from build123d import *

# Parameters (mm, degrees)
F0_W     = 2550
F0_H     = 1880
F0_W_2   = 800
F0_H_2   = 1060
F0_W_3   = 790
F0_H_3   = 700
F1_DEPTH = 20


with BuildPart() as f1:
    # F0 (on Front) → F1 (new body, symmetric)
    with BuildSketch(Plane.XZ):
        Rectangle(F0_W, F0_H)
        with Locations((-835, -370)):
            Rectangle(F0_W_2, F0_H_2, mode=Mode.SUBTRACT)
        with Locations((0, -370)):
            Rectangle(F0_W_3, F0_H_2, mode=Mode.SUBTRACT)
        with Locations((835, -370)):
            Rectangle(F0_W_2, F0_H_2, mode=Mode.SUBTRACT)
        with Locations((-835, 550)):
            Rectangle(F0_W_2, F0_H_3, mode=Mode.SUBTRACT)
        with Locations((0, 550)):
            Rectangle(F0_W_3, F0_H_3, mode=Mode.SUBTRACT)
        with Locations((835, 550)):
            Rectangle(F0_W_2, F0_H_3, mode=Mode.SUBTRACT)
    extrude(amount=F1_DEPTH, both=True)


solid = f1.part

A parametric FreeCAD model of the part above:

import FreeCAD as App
import Part
import Sketcher

V = App.Vector

doc = App.newDocument("Part")
params = doc.addObject("Spreadsheet::Sheet", "Params")
for row, (alias, value) in enumerate([
    ("sketch1_width", "2550 mm"),
    ("sketch1_width2", "800 mm"),
    ("sketch1_width3", "790 mm"),
    ("sketch1_height", "1880 mm"),
    ("sketch1_height2", "1060 mm"),
    ("pad1_length", "40 mm"),
], start=1):
    params.set(f"A{row}", alias)
    params.set(f"B{row}", "=" + value)
    params.setAlias(f"B{row}", alias)

body = doc.addObject("PartDesign::Body", "Body")

# Sketch on XZ plane
sketch1 = body.newObject("Sketcher::SketchObject", "Sketch")
sketch1.AttachmentSupport = (doc.getObject("XZ_Plane"), [""])
sketch1.MapMode = "FlatFace"
sketch1.addGeometry([
    Part.LineSegment(V(-1275, 940, 0), V(-1275, -940, 0)),  # 0
    Part.LineSegment(V(-1275, -940, 0), V(1275, -940, 0)),  # 1
    Part.LineSegment(V(1275, -940, 0), V(1275, 940, 0)),  # 2
    Part.LineSegment(V(1275, 940, 0), V(-1275, 940, 0)),  # 3
    Part.LineSegment(V(-435, -900, 0), V(-1235, -900, 0)),  # 4
    Part.LineSegment(V(-1235, -900, 0), V(-1235, 160, 0)),  # 5
    Part.LineSegment(V(-1235, 160, 0), V(-435, 160, 0)),  # 6
    Part.LineSegment(V(-435, 160, 0), V(-435, -900, 0)),  # 7
    Part.LineSegment(V(395, -900, 0), V(-395, -900, 0)),  # 8
    Part.LineSegment(V(-395, -900, 0), V(-395, 160, 0)),  # 9
    Part.LineSegment(V(-395, 160, 0), V(395, 160, 0)),  # 10
    Part.LineSegment(V(395, 160, 0), V(395, -900, 0)),  # 11
    Part.LineSegment(V(1235, -900, 0), V(435, -900, 0)),  # 12
    Part.LineSegment(V(435, -900, 0), V(435, 160, 0)),  # 13
    Part.LineSegment(V(435, 160, 0), V(1235, 160, 0)),  # 14
    Part.LineSegment(V(1235, 160, 0), V(1235, -900, 0)),  # 15
    Part.LineSegment(V(-435, 200, 0), V(-1235, 200, 0)),  # 16
    Part.LineSegment(V(-1235, 200, 0), V(-1235, 900, 0)),  # 17
    Part.LineSegment(V(-1235, 900, 0), V(-435, 900, 0)),  # 18
    Part.LineSegment(V(-435, 900, 0), V(-435, 200, 0)),  # 19
    Part.LineSegment(V(395, 200, 0), V(-395, 200, 0)),  # 20
    Part.LineSegment(V(-395, 200, 0), V(-395, 900, 0)),  # 21
    Part.LineSegment(V(-395, 900, 0), V(395, 900, 0)),  # 22
    Part.LineSegment(V(395, 900, 0), V(395, 200, 0)),  # 23
    Part.LineSegment(V(1235, 200, 0), V(435, 200, 0)),  # 24
    Part.LineSegment(V(435, 200, 0), V(435, 900, 0)),  # 25
    Part.LineSegment(V(435, 900, 0), V(1235, 900, 0)),  # 26
    Part.LineSegment(V(1235, 900, 0), V(1235, 200, 0)),  # 27
], False)
sketch1.addConstraint([
    Sketcher.Constraint("Coincident", 0, 2, 1, 1),
    Sketcher.Constraint("Coincident", 1, 2, 2, 1),
    Sketcher.Constraint("Coincident", 2, 2, 3, 1),
    Sketcher.Constraint("Coincident", 3, 2, 0, 1),
    Sketcher.Constraint("Coincident", 4, 2, 5, 1),
    Sketcher.Constraint("Coincident", 5, 2, 6, 1),
    Sketcher.Constraint("Coincident", 6, 2, 7, 1),
    Sketcher.Constraint("Coincident", 7, 2, 4, 1),
    Sketcher.Constraint("Coincident", 8, 2, 9, 1),
    Sketcher.Constraint("Coincident", 9, 2, 10, 1),
    Sketcher.Constraint("Coincident", 10, 2, 11, 1),
    Sketcher.Constraint("Coincident", 11, 2, 8, 1),
    Sketcher.Constraint("Coincident", 12, 2, 13, 1),
    Sketcher.Constraint("Coincident", 13, 2, 14, 1),
    Sketcher.Constraint("Coincident", 14, 2, 15, 1),
    Sketcher.Constraint("Coincident", 15, 2, 12, 1),
    Sketcher.Constraint("Coincident", 16, 2, 17, 1),
    Sketcher.Constraint("Coincident", 17, 2, 18, 1),
    Sketcher.Constraint("Coincident", 18, 2, 19, 1),
    Sketcher.Constraint("Coincident", 19, 2, 16, 1),
    Sketcher.Constraint("Coincident", 20, 2, 21, 1),
    Sketcher.Constraint("Coincident", 21, 2, 22, 1),
    Sketcher.Constraint("Coincident", 22, 2, 23, 1),
    Sketcher.Constraint("Coincident", 23, 2, 20, 1),
    Sketcher.Constraint("Coincident", 24, 2, 25, 1),
    Sketcher.Constraint("Coincident", 25, 2, 26, 1),
    Sketcher.Constraint("Coincident", 26, 2, 27, 1),
    Sketcher.Constraint("Coincident", 27, 2, 24, 1),
    Sketcher.Constraint("Vertical", 0),
    Sketcher.Constraint("Horizontal", 1),
    Sketcher.Constraint("Vertical", 2),
    Sketcher.Constraint("Horizontal", 3),
    Sketcher.Constraint("Horizontal", 4),
    Sketcher.Constraint("Vertical", 5),
    Sketcher.Constraint("Horizontal", 6),
    Sketcher.Constraint("Vertical", 7),
    Sketcher.Constraint("Horizontal", 8),
    Sketcher.Constraint("Vertical", 9),
    Sketcher.Constraint("Horizontal", 10),
    Sketcher.Constraint("Vertical", 11),
    Sketcher.Constraint("Horizontal", 12),
    Sketcher.Constraint("Vertical", 13),
    Sketcher.Constraint("Horizontal", 14),
    Sketcher.Constraint("Vertical", 15),
    Sketcher.Constraint("Horizontal", 16),
    Sketcher.Constraint("Vertical", 17),
    Sketcher.Constraint("Horizontal", 18),
    Sketcher.Constraint("Vertical", 19),
    Sketcher.Constraint("Horizontal", 20),
    Sketcher.Constraint("Vertical", 21),
    Sketcher.Constraint("Horizontal", 22),
    Sketcher.Constraint("Vertical", 23),
    Sketcher.Constraint("Horizontal", 24),
    Sketcher.Constraint("Vertical", 25),
    Sketcher.Constraint("Horizontal", 26),
    Sketcher.Constraint("Vertical", 27),
    Sketcher.Constraint("Symmetric", 0, 2, 2, 2, -1, 1),
    Sketcher.Constraint("Symmetric", 15, 2, 17, 2, -1, 1),
    Sketcher.Constraint("Symmetric", 11, 2, 21, 2, -1, 1),
    Sketcher.Constraint("Symmetric", 7, 2, 25, 2, -1, 1),
    Sketcher.Constraint("Symmetric", 7, 2, 12, 2, -2),
    Sketcher.Constraint("Symmetric", 5, 2, 14, 2, -2),
    Sketcher.Constraint("Symmetric", 19, 2, 24, 2, -2),
    Sketcher.Constraint("Horizontal", 7, 2, 8, 2),
    Sketcher.Constraint("Horizontal", 6, 2, 9, 2),
    Sketcher.Constraint("Horizontal", 19, 2, 20, 2),
    Sketcher.Constraint("Vertical", 9, 2, 20, 2),
    Sketcher.Constraint("Vertical", 11, 2, 22, 2),
    Sketcher.Constraint("Vertical", 15, 2, 26, 2),
    Sketcher.Constraint("DistanceX", 1, 1, 1, 2, 2550.0),
    Sketcher.Constraint("DistanceX", 4, 2, 4, 1, 800.0),
    Sketcher.Constraint("DistanceX", 8, 2, 8, 1, 790.0),
    Sketcher.Constraint("DistanceY", 0, 2, 0, 1, 1880.0),
    Sketcher.Constraint("DistanceY", 5, 1, 5, 2, 1060.0),
    Sketcher.Constraint("DistanceY", 17, 1, 17, 2, 700.0),
    Sketcher.Constraint("DistanceX", 4, 2, -1, 1, 1235.0),
    Sketcher.Constraint("DistanceY", 4, 2, -1, 1, 900.0),
])
sketch1.setExpression("Constraints[69]", "Params.sketch1_width")
sketch1.setExpression("Constraints[70]", "Params.sketch1_width2")
sketch1.setExpression("Constraints[71]", "Params.sketch1_width3")
sketch1.setExpression("Constraints[72]", "Params.sketch1_height")
sketch1.setExpression("Constraints[73]", "Params.sketch1_height2")
pad1 = body.newObject("PartDesign::Pad", "Pad")
pad1.Profile = sketch1
pad1.setExpression("Length", "Params.pad1_length")
pad1.Midplane = True

doc.recompute()
